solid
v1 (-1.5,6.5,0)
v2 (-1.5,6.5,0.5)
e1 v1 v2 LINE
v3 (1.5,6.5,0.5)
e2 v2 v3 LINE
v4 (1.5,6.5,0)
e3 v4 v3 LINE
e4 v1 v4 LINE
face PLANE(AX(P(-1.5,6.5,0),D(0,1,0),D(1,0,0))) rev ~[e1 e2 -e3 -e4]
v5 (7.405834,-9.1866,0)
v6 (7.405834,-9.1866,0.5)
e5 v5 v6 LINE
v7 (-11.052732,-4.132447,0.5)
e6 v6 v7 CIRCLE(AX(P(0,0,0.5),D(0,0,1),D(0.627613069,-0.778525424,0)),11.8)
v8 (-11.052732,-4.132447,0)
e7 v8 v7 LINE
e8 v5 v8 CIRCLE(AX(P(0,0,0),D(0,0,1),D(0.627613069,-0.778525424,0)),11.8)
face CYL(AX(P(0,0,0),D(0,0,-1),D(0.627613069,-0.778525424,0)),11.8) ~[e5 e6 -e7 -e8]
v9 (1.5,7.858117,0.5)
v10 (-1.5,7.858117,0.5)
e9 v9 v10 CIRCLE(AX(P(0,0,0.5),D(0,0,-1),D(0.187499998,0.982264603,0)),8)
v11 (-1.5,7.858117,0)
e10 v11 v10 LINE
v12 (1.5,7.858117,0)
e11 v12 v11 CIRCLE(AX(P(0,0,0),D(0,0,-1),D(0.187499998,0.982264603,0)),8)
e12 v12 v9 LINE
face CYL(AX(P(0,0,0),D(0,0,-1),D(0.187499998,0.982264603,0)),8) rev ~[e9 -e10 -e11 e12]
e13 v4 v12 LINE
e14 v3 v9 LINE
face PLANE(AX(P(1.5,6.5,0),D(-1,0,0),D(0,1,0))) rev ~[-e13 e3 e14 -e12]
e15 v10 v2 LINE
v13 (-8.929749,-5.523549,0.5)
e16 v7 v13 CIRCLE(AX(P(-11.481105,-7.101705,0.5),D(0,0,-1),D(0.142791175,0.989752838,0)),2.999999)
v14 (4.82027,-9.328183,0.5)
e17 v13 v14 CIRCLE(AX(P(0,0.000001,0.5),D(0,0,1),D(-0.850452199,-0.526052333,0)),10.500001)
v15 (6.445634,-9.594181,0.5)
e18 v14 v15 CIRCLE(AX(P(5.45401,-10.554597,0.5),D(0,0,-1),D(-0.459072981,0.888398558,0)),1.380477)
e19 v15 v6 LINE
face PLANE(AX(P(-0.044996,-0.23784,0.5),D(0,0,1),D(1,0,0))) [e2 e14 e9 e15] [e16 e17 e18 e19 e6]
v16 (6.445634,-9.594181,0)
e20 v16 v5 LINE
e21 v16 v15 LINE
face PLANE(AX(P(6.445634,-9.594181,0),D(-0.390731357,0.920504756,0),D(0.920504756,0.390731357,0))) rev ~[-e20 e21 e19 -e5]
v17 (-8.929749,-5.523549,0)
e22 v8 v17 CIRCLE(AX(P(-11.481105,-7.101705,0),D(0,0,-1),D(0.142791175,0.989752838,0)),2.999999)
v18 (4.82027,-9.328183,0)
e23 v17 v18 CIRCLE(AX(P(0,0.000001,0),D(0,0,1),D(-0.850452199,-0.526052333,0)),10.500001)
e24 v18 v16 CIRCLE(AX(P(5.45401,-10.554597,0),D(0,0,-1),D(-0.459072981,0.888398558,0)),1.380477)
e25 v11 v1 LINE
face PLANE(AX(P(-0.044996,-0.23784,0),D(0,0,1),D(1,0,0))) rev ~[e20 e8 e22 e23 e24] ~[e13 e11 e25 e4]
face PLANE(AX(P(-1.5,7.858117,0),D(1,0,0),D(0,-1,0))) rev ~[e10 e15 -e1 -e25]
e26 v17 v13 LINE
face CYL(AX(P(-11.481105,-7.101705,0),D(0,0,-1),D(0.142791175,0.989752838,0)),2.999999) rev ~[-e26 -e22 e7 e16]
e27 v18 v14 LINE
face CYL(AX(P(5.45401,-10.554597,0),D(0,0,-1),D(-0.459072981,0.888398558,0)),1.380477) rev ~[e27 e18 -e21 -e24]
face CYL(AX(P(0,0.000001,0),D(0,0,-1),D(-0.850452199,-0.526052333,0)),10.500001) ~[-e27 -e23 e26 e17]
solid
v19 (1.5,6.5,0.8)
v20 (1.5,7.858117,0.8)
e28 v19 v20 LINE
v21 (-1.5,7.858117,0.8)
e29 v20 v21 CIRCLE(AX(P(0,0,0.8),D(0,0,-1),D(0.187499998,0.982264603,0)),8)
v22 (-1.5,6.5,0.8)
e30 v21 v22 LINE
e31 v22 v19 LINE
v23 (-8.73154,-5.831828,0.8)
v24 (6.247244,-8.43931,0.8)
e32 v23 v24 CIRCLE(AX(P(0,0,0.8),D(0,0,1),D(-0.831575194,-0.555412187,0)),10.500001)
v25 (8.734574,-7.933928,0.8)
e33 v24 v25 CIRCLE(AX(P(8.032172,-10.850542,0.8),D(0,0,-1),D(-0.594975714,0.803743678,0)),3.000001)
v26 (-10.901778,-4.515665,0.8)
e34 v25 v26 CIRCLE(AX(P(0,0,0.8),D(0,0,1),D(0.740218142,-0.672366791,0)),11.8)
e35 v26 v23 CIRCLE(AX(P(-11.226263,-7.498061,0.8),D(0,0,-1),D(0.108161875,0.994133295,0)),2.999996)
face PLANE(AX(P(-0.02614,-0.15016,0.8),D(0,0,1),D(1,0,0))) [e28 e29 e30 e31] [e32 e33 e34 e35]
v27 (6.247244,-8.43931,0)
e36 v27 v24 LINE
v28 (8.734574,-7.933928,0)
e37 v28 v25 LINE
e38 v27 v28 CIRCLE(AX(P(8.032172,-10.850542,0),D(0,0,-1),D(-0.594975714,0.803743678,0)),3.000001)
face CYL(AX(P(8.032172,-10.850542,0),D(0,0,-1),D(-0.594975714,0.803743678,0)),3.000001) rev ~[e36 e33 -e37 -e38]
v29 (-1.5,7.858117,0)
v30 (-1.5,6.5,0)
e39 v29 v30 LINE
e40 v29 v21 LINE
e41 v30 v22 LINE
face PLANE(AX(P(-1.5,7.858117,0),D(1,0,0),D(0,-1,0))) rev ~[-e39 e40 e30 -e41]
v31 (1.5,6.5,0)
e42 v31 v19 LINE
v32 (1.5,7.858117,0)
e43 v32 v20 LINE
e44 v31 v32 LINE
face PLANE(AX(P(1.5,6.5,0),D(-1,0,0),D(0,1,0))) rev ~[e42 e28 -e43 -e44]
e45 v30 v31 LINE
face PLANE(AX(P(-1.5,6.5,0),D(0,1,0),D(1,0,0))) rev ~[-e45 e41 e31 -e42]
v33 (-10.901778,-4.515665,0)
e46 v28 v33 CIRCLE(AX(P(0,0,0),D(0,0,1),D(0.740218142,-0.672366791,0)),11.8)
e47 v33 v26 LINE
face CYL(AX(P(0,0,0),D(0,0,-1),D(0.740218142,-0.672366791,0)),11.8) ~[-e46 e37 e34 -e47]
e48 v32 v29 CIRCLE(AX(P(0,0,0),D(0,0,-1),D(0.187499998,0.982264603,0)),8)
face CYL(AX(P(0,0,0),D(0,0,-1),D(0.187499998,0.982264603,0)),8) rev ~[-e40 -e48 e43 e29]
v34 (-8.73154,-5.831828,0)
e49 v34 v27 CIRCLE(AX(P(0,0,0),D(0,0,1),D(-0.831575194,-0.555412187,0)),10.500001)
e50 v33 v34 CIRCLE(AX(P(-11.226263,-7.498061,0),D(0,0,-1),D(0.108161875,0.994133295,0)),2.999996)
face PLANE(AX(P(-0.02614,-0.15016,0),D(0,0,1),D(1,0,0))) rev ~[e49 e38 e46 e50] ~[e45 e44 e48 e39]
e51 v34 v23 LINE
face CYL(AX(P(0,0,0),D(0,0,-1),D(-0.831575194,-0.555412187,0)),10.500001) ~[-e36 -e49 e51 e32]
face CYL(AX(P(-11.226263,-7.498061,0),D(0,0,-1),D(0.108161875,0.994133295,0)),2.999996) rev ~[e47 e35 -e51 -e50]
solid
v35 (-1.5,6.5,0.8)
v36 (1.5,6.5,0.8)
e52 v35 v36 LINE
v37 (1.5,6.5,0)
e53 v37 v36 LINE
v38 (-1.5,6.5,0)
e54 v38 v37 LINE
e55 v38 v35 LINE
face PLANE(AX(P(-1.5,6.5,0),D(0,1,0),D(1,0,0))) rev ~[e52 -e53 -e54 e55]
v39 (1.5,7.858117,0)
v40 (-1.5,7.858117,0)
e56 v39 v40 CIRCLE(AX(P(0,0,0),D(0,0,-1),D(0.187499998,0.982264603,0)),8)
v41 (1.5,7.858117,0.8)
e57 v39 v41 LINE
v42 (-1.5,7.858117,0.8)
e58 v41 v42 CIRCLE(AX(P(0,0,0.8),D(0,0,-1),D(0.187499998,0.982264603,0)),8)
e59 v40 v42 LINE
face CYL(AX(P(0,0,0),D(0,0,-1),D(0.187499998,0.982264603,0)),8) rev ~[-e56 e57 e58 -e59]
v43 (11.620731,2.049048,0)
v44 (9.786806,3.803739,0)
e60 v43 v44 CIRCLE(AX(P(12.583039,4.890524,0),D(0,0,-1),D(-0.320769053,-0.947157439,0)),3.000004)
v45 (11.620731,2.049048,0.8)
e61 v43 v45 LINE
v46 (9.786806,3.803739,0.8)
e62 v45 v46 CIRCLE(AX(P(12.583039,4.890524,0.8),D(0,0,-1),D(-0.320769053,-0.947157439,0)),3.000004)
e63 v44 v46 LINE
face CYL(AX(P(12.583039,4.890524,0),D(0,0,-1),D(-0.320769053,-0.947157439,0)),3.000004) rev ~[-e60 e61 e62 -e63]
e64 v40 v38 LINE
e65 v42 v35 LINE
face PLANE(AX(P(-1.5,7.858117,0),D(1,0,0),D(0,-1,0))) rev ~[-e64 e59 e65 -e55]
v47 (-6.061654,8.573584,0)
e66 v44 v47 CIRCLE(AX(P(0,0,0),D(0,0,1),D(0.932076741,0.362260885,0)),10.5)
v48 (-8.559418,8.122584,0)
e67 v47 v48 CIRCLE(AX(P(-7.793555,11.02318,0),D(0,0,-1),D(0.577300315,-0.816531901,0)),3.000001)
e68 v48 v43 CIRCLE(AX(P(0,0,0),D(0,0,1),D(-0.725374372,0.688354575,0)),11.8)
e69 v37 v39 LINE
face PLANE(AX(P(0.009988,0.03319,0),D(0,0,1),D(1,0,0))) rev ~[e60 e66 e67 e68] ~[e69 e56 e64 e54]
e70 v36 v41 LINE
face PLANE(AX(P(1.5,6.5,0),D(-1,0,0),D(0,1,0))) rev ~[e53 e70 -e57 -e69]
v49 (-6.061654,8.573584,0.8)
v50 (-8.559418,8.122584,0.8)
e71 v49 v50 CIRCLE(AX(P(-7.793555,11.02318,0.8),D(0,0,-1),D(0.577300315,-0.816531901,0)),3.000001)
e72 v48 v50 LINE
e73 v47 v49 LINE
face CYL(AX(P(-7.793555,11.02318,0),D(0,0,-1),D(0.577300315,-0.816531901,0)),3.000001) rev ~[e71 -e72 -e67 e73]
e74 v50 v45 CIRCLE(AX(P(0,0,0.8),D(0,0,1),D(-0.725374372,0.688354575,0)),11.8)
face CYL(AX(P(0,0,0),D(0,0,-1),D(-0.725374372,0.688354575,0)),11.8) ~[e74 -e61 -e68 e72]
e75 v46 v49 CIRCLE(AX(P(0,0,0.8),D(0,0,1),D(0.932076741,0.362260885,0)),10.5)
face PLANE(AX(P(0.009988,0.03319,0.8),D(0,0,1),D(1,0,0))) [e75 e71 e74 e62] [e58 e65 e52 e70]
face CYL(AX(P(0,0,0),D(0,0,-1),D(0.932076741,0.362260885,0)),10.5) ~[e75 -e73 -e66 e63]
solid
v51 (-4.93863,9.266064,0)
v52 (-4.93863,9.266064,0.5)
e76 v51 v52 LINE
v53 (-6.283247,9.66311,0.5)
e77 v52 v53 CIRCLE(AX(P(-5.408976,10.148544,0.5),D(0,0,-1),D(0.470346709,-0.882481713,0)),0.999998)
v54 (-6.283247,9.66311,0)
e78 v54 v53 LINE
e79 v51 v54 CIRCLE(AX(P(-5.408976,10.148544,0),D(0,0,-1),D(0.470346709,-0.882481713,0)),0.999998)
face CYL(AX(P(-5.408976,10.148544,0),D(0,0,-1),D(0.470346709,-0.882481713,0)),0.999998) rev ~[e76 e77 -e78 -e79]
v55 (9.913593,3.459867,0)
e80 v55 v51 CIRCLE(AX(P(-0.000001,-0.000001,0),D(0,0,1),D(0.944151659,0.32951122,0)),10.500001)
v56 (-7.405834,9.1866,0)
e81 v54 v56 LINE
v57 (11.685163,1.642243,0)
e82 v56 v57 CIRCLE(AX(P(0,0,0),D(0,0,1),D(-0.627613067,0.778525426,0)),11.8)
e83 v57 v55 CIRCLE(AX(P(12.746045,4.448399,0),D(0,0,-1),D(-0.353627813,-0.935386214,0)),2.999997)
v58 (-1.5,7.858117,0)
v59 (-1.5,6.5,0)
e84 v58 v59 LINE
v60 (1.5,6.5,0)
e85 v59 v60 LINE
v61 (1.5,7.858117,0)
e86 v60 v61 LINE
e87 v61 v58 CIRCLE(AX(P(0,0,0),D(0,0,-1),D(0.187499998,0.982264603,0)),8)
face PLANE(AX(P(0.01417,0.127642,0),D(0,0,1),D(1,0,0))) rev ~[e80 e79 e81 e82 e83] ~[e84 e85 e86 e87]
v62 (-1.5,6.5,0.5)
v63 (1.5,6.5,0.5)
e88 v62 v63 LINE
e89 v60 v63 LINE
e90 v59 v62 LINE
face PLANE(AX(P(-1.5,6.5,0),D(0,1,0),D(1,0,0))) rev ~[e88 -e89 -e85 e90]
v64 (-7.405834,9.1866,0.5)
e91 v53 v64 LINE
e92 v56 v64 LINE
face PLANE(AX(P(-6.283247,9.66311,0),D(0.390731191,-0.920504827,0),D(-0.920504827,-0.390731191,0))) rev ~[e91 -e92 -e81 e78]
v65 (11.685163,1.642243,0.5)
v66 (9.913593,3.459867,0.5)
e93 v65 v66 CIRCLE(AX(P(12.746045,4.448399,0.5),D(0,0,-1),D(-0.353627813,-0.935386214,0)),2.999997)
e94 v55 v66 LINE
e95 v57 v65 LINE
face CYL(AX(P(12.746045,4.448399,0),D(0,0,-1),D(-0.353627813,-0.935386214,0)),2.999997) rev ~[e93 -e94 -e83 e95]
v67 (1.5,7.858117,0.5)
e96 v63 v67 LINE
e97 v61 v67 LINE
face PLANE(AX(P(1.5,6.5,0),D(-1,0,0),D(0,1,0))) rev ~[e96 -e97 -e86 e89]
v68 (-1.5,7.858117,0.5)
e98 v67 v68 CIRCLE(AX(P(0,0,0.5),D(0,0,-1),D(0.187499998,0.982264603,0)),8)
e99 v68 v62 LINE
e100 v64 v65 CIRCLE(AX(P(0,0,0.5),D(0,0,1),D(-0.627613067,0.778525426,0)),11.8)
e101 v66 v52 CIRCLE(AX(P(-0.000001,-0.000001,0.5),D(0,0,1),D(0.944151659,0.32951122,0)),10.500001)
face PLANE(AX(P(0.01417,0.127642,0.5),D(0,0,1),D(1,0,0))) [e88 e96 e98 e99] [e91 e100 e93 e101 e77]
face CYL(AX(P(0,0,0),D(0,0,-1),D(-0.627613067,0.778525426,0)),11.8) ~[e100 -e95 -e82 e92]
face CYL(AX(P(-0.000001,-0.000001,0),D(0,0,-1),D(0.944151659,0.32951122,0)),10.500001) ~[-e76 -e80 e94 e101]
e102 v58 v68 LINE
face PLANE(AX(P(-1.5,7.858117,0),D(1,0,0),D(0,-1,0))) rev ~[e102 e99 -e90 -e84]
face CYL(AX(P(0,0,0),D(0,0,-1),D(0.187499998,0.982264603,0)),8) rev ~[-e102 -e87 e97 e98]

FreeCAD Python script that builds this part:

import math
import FreeCAD as App
import Part
import Sketcher
Q = App.Units.Quantity

doc = App.newDocument("Part")
body = doc.addObject("PartDesign::Body", "Body")

# Sketch on XY plane
sketch1 = body.newObject("Sketcher::SketchObject", "Sketch")
sketch1.AttachmentSupport = (doc.getObject("XY_Plane"), [""])
sketch1.MapMode = "FlatFace"
sketch1.addGeometry(Part.LineSegment(App.Vector(6.445634, -9.594181, 0), App.Vector(7.405834, -9.1866, 0)), False)
sketch1.addGeometry(Part.ArcOfCircle(Part.Circle(App.Vector(0, 0, 0), App.Vector(0, 0, 1), 11.8), math.radians(-51.125762), math.radians(200.499999)), False)
sketch1.addGeometry(Part.ArcOfCircle(Part.Circle(App.Vector(-11.481105, -7.101705, 0), App.Vector(0, 0, 1), 2.999999), math.radians(31.739093), math.radians(81.790608)), False)
sketch1.addGeometry(Part.ArcOfCircle(Part.Circle(App.Vector(0, 0.000001, 0), App.Vector(0, 0, 1), 10.500001), math.radians(-148.260887), math.radians(-62.672675)), False)
sketch1.addGeometry(Part.ArcOfCircle(Part.Circle(App.Vector(5.45401, -10.554597, 0), App.Vector(0, 0, 1), 1.380477), math.radians(44.084063), math.radians(117.327305)), False)
sketch1.addGeometry(Part.LineSegment(App.Vector(1.5, 6.5, 0), App.Vector(1.5, 7.858117, 0)), False)
sketch1.addGeometry(Part.ArcOfCircle(Part.Circle(App.Vector(0, 0, 0), App.Vector(0, 0, 1), 8), math.radians(100.806923), math.radians(439.193077)), False)
sketch1.addGeometry(Part.LineSegment(App.Vector(-1.5, 7.858117, 0), App.Vector(-1.5, 6.5, 0)), False)
sketch1.addGeometry(Part.LineSegment(App.Vector(-1.5, 6.5, 0), App.Vector(1.5, 6.5, 0)), False)
sketch1.addConstraint(Sketcher.Constraint("Coincident", 0, 2, 1, 1))
sketch1.addConstraint(Sketcher.Constraint("Coincident", 1, 2, 2, 2))
sketch1.addConstraint(Sketcher.Constraint("Coincident", 2, 1, 3, 1))
sketch1.addConstraint(Sketcher.Constraint("Coincident", 3, 2, 4, 2))
sketch1.addConstraint(Sketcher.Constraint("Coincident", 4, 1, 0, 1))
sketch1.addConstraint(Sketcher.Constraint("Coincident", 5, 2, 6, 2))
sketch1.addConstraint(Sketcher.Constraint("Coincident", 6, 1, 7, 1))
sketch1.addConstraint(Sketcher.Constraint("Coincident", 7, 2, 8, 1))
sketch1.addConstraint(Sketcher.Constraint("Coincident", 8, 2, 5, 1))
sketch1.addConstraint(Sketcher.Constraint("Vertical", 5))
sketch1.addConstraint(Sketcher.Constraint("Vertical", 7))
sketch1.addConstraint(Sketcher.Constraint("Horizontal", 8))
sketch1.addConstraint(Sketcher.Constraint("Coincident", 1, 3, -1, 1))
sketch1.addConstraint(Sketcher.Constraint("Coincident", 3, 3, -1, 1))
sketch1.addConstraint(Sketcher.Constraint("Coincident", 6, 3, -1, 1))
sketch1.addConstraint(Sketcher.Constraint("Radius", 2, 2.999999))
sketch1.addConstraint(Sketcher.Constraint("Radius", 6, 8.0))
sketch1.addConstraint(Sketcher.Constraint("Radius", 1, 11.8))
sketch1.addConstraint(Sketcher.Constraint("Radius", 3, 10.500001))
sketch1.addConstraint(Sketcher.Constraint("DistanceX", 8, 1, 8, 2, 3.0))
sketch1.addConstraint(Sketcher.Constraint("DistanceX", -1, 1, 5, 2, 1.5))
sketch1.addConstraint(Sketcher.Constraint("DistanceY", -1, 1, 7, 2, 6.5))
sketch1.addConstraint(Sketcher.Constraint("Radius", 4, 1.380477))
sketch1.addConstraint(Sketcher.Constraint("DistanceY", 4, 1, 3, 2, 0.265998))
sketch1.addConstraint(Sketcher.Constraint("DistanceY", 0, 2, -1, 1, 9.1866))
sketch1.addConstraint(Sketcher.Constraint("DistanceY", 4, 3, 3, 3, 10.554598))
sketch1.addConstraint(Sketcher.Constraint("DistanceY", 2, 1, 1, 2, 1.391102))
sketch1.addConstraint(Sketcher.Constraint("DistanceX", 4, 1, 0, 2, 0.9602))
sketch1.addConstraint(Sketcher.Constraint("DistanceX", 2, 1, -1, 1, 8.929749))
pad1 = body.newObject("PartDesign::Pad", "Pad")
pad1.Profile = sketch1
pad1.Length = 0.5
body2 = doc.addObject("PartDesign::Body", "Body001")

# Sketch on XY plane
sketch2 = body2.newObject("Sketcher::SketchObject", "Sketch001")
sketch2.AttachmentSupport = (doc.getObject("XY_Plane001"), [""])
sketch2.MapMode = "FlatFace"
sketch2.addGeometry(Part.ArcOfCircle(Part.Circle(App.Vector(8, -10.9, 0), App.Vector(0, 0, 1), 3), math.radians(76), math.radians(127)), False)
sketch2.addGeometry(Part.ArcOfCircle(Part.Circle(App.Vector(0, 0, 0), App.Vector(0, 0, 1), 11.8), math.radians(-42), math.radians(203)), False)
sketch2.addGeometry(Part.ArcOfCircle(Part.Circle(App.Vector(-11.2, -7.5, 0), App.Vector(0, 0, 1), 3), math.radians(34), math.radians(84)), False)
sketch2.addGeometry(Part.ArcOfCircle(Part.Circle(App.Vector(0, 0, 0), App.Vector(0, 0, 1), 10.5), math.radians(-146), math.radians(-53)), False)
sketch2.addGeometry(Part.LineSegment(App.Vector(1.5, 6.5, 0), App.Vector(1.5, 7.9, 0)), False)
sketch2.addGeometry(Part.ArcOfCircle(Part.Circle(App.Vector(0, 0, 0), App.Vector(0, 0, 1), 8), math.radians(101), math.radians(439)), False)
sketch2.addGeometry(Part.LineSegment(App.Vector(-1.5, 7.9, 0), App.Vector(-1.5, 6.5, 0)), False)
sketch2.addGeometry(Part.LineSegment(App.Vector(-1.5, 6.5, 0), App.Vector(1.5, 6.5, 0)), False)
sketch2.addConstraint(Sketcher.Constraint("Coincident", 0, 1, 1, 1))
sketch2.addConstraint(Sketcher.Constraint("Coincident", 1, 2, 2, 2))
sketch2.addConstraint(Sketcher.Constraint("Tangent", 2, 1, 3, 1))
sketch2.addConstraint(Sketcher.Constraint("Tangent", 3, 2, 0, 2))
sketch2.addConstraint(Sketcher.Constraint("Coincident", 4, 2, 5, 2))
sketch2.addConstraint(Sketcher.Constraint("Coincident", 5, 1, 6, 1))
sketch2.addConstraint(Sketcher.Constraint("Coincident", 6, 2, 7, 1))
sketch2.addConstraint(Sketcher.Constraint("Coincident", 7, 2, 4, 1))
sketch2.addConstraint(Sketcher.Constraint("Vertical", 4))
sketch2.addConstraint(Sketcher.Constraint("Vertical", 6))
sketch2.addConstraint(Sketcher.Constraint("Horizontal", 7))
sketch2.addConstraint(Sketcher.Constraint("Coincident", 1, 3, -1, 1))
sketch2.addConstraint(Sketcher.Constraint("Coincident", 3, 3, -1, 1))
sketch2.addConstraint(Sketcher.Constraint("Coincident", 5, 3, -1, 1))
sketch2.addConstraint(Sketcher.Constraint("Horizontal", 4, 2, 5, 1))
sketch2.addConstraint(Sketcher.Constraint("Radius", 0, 3.000001))
sketch2.addConstraint(Sketcher.Constraint("Radius", 5, 8.0))
sketch2.addConstraint(Sketcher.Constraint("Radius", 1, 11.8))
sketch2.addConstraint(Sketcher.Constraint("Radius", 3, 10.500001))
sketch2.addConstraint(Sketcher.Constraint("DistanceX", 7, 1, 7, 2, 3.0))
sketch2.addConstraint(Sketcher.Constraint("DistanceY", -1, 1, 6, 2, 6.5))
sketch2.addConstraint(Sketcher.Constraint("Radius", 2, 2.999996))
sketch2.addConstraint(Sketcher.Constraint("DistanceX", -1, 1, 0, 3, 8.032172))
sketch2.addConstraint(Sketcher.Constraint("DistanceY", 2, 3, -1, 1, 7.498061))
pad2 = body2.newObject("PartDesign::Pad", "Pad001")
pad2.Profile = sketch2
pad2.Length = 0.8
body3 = doc.addObject("PartDesign::Body", "Body002")

# Sketch on XY plane
sketch3 = body3.newObject("Sketcher::SketchObject", "Sketch002")
sketch3.AttachmentSupport = (doc.getObject("XY_Plane002"), [""])
sketch3.MapMode = "FlatFace"
sketch3.addGeometry(Part.LineSegment(App.Vector(-6.3, 9.7, 0), App.Vector(-7.4, 9.2, 0)), False)
sketch3.addGeometry(Part.ArcOfCircle(Part.Circle(App.Vector(0, 0, 0), App.Vector(0, 0, 1), 11.8), math.radians(129), math.radians(368)), False)
sketch3.addGeometry(Part.ArcOfCircle(Part.Circle(App.Vector(12.7, 4.4, 0), App.Vector(0, 0, 1), 3), math.radians(-161), math.radians(-111)), False)
sketch3.addGeometry(Part.ArcOfCircle(Part.Circle(App.Vector(0, 0, 0), App.Vector(0, 0, 1), 10.5), math.radians(19), math.radians(118)), False)
sketch3.addGeometry(Part.ArcOfCircle(Part.Circle(App.Vector(-5.4, 10.1, 0), App.Vector(0, 0, 1), 1), math.radians(-151), math.radians(-62)), False)
sketch3.addGeometry(Part.LineSegment(App.Vector(1.5, 6.5, 0), App.Vector(1.5, 7.9, 0)), False)
sketch3.addGeometry(Part.ArcOfCircle(Part.Circle(App.Vector(0, 0, 0), App.Vector(0, 0, 1), 8), math.radians(101), math.radians(439)), False)
sketch3.addGeometry(Part.LineSegment(App.Vector(-1.5, 7.9, 0), App.Vector(-1.5, 6.5, 0)), False)
sketch3.addGeometry(Part.LineSegment(App.Vector(-1.5, 6.5, 0), App.Vector(1.5, 6.5, 0)), False)
sketch3.addConstraint(Sketcher.Constraint("Coincident", 0, 2, 1, 1))
sketch3.addConstraint(Sketcher.Constraint("Coincident", 1, 2, 2, 2))
sketch3.addConstraint(Sketcher.Constraint("Tangent", 2, 1, 3, 1))
sketch3.addConstraint(Sketcher.Constraint("Tangent", 3, 2, 4, 2))
sketch3.addConstraint(Sketcher.Constraint("Coincident", 4, 1, 0, 1))
sketch3.addConstraint(Sketcher.Constraint("Coincident", 5, 2, 6, 2))
sketch3.addConstraint(Sketcher.Constraint("Coincident", 6, 1, 7, 1))
sketch3.addConstraint(Sketcher.Constraint("Coincident", 7, 2, 8, 1))
sketch3.addConstraint(Sketcher.Constraint("Coincident", 8, 2, 5, 1))
sketch3.addConstraint(Sketcher.Constraint("Vertical", 5))
sketch3.addConstraint(Sketcher.Constraint("Vertical", 7))
sketch3.addConstraint(Sketcher.Constraint("Horizontal", 8))
sketch3.addConstraint(Sketcher.Constraint("Coincident", 1, 3, -1, 1))
sketch3.addConstraint(Sketcher.Constraint("Coincident", 3, 3, -1, 1))
sketch3.addConstraint(Sketcher.Constraint("Coincident", 6, 3, -1, 1))
sketch3.addConstraint(Sketcher.Constraint("Horizontal", 5, 2, 6, 1))
sketch3.addConstraint(Sketcher.Constraint("Radius", 4, 0.999998))
sketch3.addConstraint(Sketcher.Constraint("Radius", 6, 8.0))
sketch3.addConstraint(Sketcher.Constraint("Radius", 1, 11.8))
sketch3.addConstraint(Sketcher.Constraint("Radius", 3, 10.500001))
sketch3.addConstraint(Sketcher.Constraint("DistanceX", 8, 1, 8, 2, 3.0))
sketch3.addConstraint(Sketcher.Constraint("Angle", 0, Q("-156.999996 deg")))
sketch3.addConstraint(Sketcher.Constraint("DistanceY", -1, 1, 7, 2, 6.5))
sketch3.addConstraint(Sketcher.Constraint("Radius", 2, 2.999997))
sketch3.addConstraint(Sketcher.Constraint("DistanceY", -1, 1, 2, 3, 4.448399))
sketch3.addConstraint(Sketcher.Constraint("DistanceY", -1, 1, 0, 2, 9.1866))
sketch3.addConstraint(Sketcher.Constraint("DistanceY", 1, 2, 4, 3, 8.506301))
pad3 = body3.newObject("PartDesign::Pad", "Pad002")
pad3.Profile = sketch3
pad3.Length = 0.5
body4 = doc.addObject("PartDesign::Body", "Body003")

# Sketch on XY plane
sketch4 = body4.newObject("Sketcher::SketchObject", "Sketch003")
sketch4.AttachmentSupport = (doc.getObject("XY_Plane003"), [""])
sketch4.MapMode = "FlatFace"
sketch4.addGeometry(Part.ArcOfCircle(Part.Circle(App.Vector(-7.8, 11, 0), App.Vector(0, 0, 1), 3), math.radians(-105), math.radians(-55)), False)
sketch4.addGeometry(Part.ArcOfCircle(Part.Circle(App.Vector(0, 0, 0), App.Vector(0, 0, 1), 11.8), math.radians(137), math.radians(370)), False)
sketch4.addGeometry(Part.ArcOfCircle(Part.Circle(App.Vector(12.6, 4.9, 0), App.Vector(0, 0, 1), 3), math.radians(-159), math.radians(-109)), False)
sketch4.addGeometry(Part.ArcOfCircle(Part.Circle(App.Vector(0, 0, 0), App.Vector(0, 0, 1), 10.5), math.radians(21), math.radians(125)), False)
sketch4.addGeometry(Part.LineSegment(App.Vector(1.5, 6.5, 0), App.Vector(1.5, 7.9, 0)), False)
sketch4.addGeometry(Part.ArcOfCircle(Part.Circle(App.Vector(0, 0, 0), App.Vector(0, 0, 1), 8), math.radians(101), math.radians(439)), False)
sketch4.addGeometry(Part.LineSegment(App.Vector(-1.5, 7.9, 0), App.Vector(-1.5, 6.5, 0)), False)
sketch4.addGeometry(Part.LineSegment(App.Vector(-1.5, 6.5, 0), App.Vector(1.5, 6.5, 0)), False)
sketch4.addConstraint(Sketcher.Constraint("Coincident", 0, 1, 1, 1))
sketch4.addConstraint(Sketcher.Constraint("Coincident", 1, 2, 2, 2))
sketch4.addConstraint(Sketcher.Constraint("Tangent", 2, 1, 3, 1))
sketch4.addConstraint(Sketcher.Constraint("Tangent", 3, 2, 0, 2))
sketch4.addConstraint(Sketcher.Constraint("Coincident", 4, 2, 5, 2))
sketch4.addConstraint(Sketcher.Constraint("Coincident", 5, 1, 6, 1))
sketch4.addConstraint(Sketcher.Constraint("Coincident", 6, 2, 7, 1))
sketch4.addConstraint(Sketcher.Constraint("Coincident", 7, 2, 4, 1))
sketch4.addConstraint(Sketcher.Constraint("Vertical", 4))
sketch4.addConstraint(Sketcher.Constraint("Vertical", 6))
sketch4.addConstraint(Sketcher.Constraint("Horizontal", 7))
sketch4.addConstraint(Sketcher.Constraint("Coincident", 1, 3, -1, 1))
sketch4.addConstraint(Sketcher.Constraint("Coincident", 3, 3, -1, 1))
sketch4.addConstraint(Sketcher.Constraint("Coincident", 5, 3, -1, 1))
sketch4.addConstraint(Sketcher.Constraint("Horizontal", 4, 2, 5, 1))
sketch4.addConstraint(Sketcher.Constraint("Radius", 0, 3.000001))
sketch4.addConstraint(Sketcher.Constraint("Radius", 5, 8.0))
sketch4.addConstraint(Sketcher.Constraint("Radius", 1, 11.8))
sketch4.addConstraint(Sketcher.Constraint("Radius", 3, 10.5))
sketch4.addConstraint(Sketcher.Constraint("DistanceX", 7, 1, 7, 2, 3.0))
sketch4.addConstraint(Sketcher.Constraint("DistanceY", -1, 1, 6, 2, 6.5))
sketch4.addConstraint(Sketcher.Constraint("Radius", 2, 3.000004))
sketch4.addConstraint(Sketcher.Constraint("DistanceY", 0, 1, 3, 2, 0.451))
sketch4.addConstraint(Sketcher.Constraint("DistanceX", -1, 1, 2, 3, 12.583039))
pad4 = body4.newObject("PartDesign::Pad", "Pad003")
pad4.Profile = sketch4
pad4.Length = 0.8

doc.recompute()
